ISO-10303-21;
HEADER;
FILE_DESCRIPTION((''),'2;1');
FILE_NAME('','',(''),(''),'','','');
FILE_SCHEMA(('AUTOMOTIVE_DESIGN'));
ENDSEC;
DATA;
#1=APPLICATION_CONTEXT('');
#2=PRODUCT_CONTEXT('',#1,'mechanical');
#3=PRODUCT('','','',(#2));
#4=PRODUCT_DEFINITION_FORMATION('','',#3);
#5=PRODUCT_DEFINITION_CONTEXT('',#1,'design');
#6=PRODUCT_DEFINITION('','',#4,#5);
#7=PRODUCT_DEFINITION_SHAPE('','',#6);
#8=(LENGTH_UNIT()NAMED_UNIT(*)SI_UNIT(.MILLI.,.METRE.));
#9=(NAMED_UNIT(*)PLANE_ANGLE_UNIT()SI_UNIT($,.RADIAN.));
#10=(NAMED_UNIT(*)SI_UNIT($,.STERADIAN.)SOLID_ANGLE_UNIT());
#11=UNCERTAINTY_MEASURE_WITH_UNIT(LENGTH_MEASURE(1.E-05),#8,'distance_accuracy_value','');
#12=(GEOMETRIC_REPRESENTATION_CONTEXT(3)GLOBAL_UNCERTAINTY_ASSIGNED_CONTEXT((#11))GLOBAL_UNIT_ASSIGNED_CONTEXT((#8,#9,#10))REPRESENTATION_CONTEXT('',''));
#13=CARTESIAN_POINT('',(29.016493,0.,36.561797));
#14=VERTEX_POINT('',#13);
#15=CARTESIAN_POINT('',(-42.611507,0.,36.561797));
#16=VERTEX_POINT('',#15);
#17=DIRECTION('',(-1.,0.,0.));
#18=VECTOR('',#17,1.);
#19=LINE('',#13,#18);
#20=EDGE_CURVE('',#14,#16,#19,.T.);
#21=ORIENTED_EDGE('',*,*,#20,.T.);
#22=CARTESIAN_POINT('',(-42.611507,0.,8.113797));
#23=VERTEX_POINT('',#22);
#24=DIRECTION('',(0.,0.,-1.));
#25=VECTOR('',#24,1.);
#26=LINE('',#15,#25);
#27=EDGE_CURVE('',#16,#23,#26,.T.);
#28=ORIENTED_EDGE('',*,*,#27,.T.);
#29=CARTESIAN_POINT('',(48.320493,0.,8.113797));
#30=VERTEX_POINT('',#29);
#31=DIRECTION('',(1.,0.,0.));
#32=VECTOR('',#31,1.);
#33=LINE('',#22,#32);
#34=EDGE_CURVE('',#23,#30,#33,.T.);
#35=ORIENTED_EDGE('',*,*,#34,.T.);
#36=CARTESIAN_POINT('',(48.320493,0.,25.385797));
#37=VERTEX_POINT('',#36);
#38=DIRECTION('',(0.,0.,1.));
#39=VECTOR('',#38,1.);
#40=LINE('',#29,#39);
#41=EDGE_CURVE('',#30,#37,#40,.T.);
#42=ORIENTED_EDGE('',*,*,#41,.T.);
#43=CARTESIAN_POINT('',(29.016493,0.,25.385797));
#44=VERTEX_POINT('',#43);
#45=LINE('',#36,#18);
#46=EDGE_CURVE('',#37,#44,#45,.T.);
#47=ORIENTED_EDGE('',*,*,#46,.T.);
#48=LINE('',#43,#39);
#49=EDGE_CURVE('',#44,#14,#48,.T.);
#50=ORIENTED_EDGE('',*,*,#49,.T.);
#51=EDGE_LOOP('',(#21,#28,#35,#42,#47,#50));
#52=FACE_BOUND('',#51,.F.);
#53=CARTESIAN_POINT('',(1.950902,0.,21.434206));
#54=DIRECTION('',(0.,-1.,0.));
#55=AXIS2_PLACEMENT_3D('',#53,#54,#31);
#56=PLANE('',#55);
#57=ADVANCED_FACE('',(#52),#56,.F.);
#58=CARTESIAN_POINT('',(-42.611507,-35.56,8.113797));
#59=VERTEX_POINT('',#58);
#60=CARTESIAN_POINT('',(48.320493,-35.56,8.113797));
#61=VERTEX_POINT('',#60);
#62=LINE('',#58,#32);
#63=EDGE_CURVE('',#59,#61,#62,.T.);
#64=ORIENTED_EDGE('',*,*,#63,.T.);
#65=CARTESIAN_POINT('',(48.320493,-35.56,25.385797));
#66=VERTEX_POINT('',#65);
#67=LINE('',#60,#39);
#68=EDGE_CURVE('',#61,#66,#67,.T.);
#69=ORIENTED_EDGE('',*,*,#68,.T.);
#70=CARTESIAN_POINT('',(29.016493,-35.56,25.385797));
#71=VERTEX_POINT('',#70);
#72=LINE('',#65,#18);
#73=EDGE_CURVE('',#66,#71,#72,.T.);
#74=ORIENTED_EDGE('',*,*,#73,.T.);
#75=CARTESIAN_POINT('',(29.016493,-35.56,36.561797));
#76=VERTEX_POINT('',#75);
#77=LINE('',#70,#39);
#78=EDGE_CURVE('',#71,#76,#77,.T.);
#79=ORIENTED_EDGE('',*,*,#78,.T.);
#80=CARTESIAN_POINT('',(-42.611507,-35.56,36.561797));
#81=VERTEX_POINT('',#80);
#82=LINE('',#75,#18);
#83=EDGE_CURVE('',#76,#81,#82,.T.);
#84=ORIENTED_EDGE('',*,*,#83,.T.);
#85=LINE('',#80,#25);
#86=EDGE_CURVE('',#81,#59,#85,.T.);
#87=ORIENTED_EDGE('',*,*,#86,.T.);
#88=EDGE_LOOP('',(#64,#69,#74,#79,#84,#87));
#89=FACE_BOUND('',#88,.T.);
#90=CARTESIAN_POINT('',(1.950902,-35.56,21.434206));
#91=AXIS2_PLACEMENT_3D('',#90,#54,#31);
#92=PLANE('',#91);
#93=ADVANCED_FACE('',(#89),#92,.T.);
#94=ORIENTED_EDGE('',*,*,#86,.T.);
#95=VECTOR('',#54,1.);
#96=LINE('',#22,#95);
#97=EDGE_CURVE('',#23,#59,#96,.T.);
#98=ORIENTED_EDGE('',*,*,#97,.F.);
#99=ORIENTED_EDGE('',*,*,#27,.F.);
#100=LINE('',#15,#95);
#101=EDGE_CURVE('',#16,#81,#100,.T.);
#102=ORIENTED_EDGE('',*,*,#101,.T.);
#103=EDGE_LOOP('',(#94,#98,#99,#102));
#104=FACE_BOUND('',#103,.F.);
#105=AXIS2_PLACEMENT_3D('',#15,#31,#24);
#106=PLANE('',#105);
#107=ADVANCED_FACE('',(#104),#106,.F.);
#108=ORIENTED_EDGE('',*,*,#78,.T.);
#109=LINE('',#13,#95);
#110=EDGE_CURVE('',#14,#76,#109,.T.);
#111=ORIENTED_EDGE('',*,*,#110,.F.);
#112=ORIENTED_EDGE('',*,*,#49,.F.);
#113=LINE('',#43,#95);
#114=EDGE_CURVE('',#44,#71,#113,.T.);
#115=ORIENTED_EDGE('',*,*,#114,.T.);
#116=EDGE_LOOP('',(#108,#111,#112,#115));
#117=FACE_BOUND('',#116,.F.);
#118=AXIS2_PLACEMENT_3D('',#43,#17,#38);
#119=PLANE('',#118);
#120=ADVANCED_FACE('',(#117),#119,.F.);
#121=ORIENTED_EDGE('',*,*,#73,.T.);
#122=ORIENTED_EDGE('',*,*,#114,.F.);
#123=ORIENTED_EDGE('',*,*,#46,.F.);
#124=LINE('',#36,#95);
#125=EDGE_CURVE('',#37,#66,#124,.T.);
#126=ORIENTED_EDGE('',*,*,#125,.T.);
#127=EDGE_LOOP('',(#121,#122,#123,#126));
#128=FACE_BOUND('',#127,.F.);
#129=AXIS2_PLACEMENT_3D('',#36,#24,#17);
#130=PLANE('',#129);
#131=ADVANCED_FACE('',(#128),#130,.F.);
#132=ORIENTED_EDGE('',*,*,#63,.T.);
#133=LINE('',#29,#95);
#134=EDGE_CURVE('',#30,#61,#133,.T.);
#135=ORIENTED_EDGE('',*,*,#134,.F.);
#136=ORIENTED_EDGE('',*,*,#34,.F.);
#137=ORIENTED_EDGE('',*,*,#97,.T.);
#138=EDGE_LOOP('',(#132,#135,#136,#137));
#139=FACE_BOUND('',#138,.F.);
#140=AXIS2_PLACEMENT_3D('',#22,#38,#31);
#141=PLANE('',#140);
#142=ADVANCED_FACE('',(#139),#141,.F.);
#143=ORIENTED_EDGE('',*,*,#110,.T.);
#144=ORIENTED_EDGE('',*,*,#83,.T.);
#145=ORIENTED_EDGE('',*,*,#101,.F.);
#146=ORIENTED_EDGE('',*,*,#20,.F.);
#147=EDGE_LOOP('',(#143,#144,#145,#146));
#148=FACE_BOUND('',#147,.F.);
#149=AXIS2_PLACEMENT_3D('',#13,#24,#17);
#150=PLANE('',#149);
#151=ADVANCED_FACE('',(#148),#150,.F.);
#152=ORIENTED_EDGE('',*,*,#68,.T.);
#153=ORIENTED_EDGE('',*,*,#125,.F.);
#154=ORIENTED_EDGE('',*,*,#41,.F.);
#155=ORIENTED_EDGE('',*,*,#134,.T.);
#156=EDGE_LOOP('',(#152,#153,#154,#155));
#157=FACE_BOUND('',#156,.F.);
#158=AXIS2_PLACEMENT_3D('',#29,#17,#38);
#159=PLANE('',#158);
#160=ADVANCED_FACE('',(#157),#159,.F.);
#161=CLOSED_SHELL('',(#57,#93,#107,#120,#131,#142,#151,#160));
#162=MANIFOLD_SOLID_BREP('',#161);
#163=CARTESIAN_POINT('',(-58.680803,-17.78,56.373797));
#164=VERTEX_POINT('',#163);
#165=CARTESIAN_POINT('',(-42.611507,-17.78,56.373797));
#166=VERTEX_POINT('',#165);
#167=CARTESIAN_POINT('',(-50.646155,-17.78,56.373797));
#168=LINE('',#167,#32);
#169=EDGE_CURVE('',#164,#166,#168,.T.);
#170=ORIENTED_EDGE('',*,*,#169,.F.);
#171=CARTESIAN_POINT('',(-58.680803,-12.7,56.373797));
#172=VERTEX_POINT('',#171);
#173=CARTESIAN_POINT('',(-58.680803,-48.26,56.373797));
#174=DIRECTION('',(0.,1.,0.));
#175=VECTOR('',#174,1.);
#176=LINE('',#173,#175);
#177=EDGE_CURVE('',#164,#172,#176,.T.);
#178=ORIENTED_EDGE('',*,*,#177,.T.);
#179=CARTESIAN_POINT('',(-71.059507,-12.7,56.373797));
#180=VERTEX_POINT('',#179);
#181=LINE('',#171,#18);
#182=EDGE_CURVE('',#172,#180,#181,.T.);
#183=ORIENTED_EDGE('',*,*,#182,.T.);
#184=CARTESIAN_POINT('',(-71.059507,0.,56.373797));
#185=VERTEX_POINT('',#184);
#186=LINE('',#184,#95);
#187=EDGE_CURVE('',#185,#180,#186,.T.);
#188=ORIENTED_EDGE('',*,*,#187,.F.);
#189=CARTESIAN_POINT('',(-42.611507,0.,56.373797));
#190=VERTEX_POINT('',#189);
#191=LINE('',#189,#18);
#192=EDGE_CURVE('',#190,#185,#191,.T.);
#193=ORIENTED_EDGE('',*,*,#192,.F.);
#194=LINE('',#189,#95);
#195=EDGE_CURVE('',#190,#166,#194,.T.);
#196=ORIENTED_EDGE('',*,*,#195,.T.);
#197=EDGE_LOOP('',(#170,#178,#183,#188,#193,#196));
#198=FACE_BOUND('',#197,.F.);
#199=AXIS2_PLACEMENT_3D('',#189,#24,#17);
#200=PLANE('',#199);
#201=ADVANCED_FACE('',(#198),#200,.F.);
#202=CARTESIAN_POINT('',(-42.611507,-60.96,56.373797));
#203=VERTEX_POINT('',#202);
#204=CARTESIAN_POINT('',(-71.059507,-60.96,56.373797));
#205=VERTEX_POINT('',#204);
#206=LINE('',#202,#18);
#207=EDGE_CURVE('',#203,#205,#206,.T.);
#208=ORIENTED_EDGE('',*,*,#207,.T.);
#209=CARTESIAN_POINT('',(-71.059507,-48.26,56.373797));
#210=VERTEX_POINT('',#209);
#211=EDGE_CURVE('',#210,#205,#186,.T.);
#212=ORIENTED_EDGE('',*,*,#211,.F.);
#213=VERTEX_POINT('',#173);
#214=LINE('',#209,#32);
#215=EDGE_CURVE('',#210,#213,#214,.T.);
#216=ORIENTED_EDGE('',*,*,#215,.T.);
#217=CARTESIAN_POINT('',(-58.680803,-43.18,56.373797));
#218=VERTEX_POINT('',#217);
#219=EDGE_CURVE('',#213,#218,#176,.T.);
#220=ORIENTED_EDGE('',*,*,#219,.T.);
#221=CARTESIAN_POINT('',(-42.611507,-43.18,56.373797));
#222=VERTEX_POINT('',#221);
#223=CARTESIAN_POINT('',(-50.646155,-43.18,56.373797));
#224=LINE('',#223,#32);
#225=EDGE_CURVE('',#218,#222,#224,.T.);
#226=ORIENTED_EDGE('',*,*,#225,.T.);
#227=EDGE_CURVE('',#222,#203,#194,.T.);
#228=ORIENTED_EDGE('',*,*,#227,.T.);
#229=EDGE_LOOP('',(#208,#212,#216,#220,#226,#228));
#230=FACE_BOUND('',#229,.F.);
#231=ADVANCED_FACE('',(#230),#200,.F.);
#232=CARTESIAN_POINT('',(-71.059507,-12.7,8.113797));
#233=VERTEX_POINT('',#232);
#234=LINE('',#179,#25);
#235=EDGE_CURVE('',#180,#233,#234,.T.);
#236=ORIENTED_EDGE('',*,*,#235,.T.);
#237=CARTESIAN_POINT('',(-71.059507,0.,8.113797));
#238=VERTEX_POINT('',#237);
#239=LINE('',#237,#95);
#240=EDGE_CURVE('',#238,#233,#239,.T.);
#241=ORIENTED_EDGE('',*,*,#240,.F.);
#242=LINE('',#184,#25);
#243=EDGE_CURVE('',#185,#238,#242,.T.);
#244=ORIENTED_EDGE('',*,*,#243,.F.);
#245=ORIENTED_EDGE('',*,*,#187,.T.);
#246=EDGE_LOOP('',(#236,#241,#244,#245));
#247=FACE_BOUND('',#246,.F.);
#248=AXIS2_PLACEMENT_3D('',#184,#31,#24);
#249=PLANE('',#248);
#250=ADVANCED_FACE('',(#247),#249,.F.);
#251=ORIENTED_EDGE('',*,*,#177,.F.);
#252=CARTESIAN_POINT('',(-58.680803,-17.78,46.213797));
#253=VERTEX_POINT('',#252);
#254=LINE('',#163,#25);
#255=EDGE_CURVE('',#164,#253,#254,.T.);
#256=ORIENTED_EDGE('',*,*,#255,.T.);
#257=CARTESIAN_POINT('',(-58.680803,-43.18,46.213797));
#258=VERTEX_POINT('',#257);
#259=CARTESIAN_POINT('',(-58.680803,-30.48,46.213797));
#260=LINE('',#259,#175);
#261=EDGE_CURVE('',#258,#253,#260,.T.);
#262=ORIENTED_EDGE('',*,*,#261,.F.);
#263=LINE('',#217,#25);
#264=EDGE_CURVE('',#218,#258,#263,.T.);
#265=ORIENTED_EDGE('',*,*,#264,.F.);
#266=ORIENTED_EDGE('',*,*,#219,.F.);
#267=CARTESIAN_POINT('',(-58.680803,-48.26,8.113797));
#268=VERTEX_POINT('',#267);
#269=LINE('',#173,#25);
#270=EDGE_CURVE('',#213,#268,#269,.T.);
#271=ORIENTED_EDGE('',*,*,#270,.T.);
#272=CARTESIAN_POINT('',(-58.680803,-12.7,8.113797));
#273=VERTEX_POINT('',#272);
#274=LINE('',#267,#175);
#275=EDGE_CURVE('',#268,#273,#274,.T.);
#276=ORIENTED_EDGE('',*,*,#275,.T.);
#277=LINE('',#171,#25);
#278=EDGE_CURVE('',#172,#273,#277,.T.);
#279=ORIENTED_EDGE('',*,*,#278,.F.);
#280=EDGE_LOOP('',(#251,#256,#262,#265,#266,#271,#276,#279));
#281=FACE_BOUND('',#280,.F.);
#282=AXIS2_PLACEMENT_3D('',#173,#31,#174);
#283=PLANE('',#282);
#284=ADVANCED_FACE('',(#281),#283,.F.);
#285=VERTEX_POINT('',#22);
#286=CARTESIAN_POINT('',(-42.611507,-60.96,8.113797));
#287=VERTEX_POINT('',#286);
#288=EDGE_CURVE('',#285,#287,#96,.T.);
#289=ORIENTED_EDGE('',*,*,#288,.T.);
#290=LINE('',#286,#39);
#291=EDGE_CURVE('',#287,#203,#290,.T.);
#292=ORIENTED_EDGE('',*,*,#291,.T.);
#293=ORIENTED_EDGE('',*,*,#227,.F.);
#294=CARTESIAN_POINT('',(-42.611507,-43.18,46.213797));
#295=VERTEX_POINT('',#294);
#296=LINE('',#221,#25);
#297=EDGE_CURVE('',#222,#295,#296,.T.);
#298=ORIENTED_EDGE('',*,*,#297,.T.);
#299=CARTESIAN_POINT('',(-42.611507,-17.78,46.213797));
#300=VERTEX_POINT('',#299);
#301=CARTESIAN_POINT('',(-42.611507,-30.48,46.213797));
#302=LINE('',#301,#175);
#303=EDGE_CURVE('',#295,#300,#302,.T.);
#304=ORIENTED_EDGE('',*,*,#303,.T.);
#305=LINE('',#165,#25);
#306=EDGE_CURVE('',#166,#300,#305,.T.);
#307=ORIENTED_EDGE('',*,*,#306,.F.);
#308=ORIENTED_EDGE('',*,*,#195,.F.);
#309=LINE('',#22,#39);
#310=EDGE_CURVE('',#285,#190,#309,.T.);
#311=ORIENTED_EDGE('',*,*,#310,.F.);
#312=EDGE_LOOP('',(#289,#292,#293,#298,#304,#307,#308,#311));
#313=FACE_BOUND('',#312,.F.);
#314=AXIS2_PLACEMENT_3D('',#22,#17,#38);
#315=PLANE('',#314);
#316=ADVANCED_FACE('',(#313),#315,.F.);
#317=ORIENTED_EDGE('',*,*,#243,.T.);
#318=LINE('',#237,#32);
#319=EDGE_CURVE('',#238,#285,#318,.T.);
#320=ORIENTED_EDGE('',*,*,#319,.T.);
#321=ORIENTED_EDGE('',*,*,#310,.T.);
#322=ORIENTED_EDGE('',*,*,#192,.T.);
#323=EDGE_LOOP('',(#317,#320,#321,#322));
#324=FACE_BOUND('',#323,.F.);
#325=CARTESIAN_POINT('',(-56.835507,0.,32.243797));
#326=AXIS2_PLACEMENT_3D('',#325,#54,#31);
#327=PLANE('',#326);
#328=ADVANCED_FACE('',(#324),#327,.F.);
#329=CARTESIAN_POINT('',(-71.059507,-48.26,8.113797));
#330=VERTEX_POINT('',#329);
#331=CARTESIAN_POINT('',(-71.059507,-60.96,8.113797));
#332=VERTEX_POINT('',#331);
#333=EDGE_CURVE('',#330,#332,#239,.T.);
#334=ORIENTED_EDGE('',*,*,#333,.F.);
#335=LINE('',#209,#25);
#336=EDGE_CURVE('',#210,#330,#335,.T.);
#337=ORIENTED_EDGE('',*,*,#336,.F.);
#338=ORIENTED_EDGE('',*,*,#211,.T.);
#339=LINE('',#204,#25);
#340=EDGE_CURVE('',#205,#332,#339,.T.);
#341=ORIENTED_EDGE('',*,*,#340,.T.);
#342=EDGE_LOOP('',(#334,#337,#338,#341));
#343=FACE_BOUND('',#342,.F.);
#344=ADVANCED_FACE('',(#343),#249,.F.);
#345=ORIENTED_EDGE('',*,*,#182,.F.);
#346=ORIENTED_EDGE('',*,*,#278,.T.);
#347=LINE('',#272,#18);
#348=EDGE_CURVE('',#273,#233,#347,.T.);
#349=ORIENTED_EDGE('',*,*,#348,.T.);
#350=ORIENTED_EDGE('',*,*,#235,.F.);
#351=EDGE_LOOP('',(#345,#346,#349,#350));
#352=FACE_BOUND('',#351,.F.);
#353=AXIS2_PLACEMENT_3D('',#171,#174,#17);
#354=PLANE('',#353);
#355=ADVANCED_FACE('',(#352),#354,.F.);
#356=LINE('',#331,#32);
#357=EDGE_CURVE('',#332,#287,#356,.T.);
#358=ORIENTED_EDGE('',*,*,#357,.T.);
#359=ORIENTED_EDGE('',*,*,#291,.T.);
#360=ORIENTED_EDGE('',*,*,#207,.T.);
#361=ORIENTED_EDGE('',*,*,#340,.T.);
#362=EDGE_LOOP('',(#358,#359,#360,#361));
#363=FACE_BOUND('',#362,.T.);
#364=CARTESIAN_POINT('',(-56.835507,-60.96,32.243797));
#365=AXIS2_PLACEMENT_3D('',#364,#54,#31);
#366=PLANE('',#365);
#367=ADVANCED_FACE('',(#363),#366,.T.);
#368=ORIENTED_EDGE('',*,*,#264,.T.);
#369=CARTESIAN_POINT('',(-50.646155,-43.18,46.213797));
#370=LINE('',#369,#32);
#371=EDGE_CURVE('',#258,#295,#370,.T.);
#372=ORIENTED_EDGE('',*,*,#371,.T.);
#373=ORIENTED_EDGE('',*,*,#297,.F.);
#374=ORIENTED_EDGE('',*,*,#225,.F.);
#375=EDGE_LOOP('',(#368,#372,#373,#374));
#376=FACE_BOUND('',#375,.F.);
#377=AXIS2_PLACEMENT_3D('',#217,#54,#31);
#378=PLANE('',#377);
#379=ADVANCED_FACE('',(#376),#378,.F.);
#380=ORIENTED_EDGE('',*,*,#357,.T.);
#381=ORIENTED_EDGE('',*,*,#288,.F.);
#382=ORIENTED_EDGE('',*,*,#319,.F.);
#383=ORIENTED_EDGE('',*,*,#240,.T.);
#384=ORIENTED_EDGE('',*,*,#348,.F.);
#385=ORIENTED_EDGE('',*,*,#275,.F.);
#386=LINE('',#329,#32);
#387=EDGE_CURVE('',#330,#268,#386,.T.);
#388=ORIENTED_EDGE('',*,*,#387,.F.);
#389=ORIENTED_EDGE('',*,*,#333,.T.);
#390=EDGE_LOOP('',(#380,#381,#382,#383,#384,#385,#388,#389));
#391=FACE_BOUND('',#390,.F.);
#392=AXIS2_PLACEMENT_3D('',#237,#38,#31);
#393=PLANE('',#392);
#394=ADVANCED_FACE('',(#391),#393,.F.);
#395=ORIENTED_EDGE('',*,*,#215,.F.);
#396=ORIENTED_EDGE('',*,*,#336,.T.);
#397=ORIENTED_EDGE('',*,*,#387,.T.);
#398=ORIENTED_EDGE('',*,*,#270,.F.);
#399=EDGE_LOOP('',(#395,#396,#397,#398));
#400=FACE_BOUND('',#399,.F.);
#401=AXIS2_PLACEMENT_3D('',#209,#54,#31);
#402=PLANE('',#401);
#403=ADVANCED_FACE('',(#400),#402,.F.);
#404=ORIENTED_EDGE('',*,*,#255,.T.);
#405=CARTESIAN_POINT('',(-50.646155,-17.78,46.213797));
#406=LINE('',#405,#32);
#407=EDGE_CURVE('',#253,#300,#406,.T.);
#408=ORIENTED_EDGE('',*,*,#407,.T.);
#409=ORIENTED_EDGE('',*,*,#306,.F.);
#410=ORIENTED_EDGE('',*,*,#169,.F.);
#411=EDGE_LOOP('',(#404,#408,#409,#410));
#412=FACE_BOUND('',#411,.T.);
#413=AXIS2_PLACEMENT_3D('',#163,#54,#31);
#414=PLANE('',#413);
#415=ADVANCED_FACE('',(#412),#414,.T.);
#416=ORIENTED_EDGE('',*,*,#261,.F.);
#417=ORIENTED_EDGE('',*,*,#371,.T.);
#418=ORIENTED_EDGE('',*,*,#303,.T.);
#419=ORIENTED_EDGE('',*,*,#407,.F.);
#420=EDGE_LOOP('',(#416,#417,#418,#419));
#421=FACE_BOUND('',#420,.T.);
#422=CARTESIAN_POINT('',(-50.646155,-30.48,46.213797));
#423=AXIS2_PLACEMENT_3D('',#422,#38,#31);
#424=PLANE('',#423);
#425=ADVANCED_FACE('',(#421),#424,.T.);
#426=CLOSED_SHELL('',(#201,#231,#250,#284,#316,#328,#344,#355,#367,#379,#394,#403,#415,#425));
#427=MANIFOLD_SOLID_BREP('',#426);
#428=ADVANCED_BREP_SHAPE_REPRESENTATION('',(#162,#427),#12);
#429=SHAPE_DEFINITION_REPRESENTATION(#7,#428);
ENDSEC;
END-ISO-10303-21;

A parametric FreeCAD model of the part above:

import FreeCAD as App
import Part
import Sketcher

V = App.Vector
Q = App.Units.Quantity


def add_polygon(sketch, points):
    """Adds a closed chain of lines whose ends are joined by coincident constraints."""
    first, n = sketch.GeometryCount, len(points)
    for a, b in zip(points, points[1:] + points[:1]):
        sketch.addGeometry(Part.LineSegment(App.Vector(*a, 0), App.Vector(*b, 0)), False)
    for i in range(n):
        sketch.addConstraint(Sketcher.Constraint("Coincident", first + i, 2, first + (i + 1) % n, 1))

doc = App.newDocument("Part")
body = doc.addObject("PartDesign::Body", "Body")

sketch1 = body.newObject("Sketcher::SketchObject", "Sketch")
sketch1.AttachmentSupport = (doc.getObject("XZ_Plane"), [""])
sketch1.MapMode = "FlatFace"
add_polygon(sketch1, [(-43, 56), (-71, 56), (-71, 8), (-43, 8)])
sketch1.addConstraint([
    Sketcher.Constraint("Horizontal", 0),
    Sketcher.Constraint("Vertical", 1),
    Sketcher.Constraint("Horizontal", 2),
    Sketcher.Constraint("Vertical", 3),
    Sketcher.Constraint("DistanceY", 1, 2, 1, 1, Q("1.9 in")),
    Sketcher.Constraint("DistanceX", 0, 2, 0, 1, Q("1.12 in")),
    Sketcher.Constraint("DistanceX", 0, 2, -1, 1, 71.059507),
    Sketcher.Constraint("DistanceY", -1, 1, 0, 2, 56.373797),
])
pad1 = body.newObject("PartDesign::Pad", "Pad")
pad1.Profile = sketch1
pad1.Length = Q("2.4 in")

sketch2 = body.newObject("Sketcher::SketchObject", "Sketch001")
sketch2.AttachmentSupport = (doc.getObject("XY_Plane"), [""])
sketch2.MapMode = "FlatFace"
sketch2.AttachmentOffset = App.Placement(V(0, 0, 56.373797), App.Rotation())
add_polygon(sketch2, [(-59, -18), (-59, -43), (-43, -43), (-43, -18)])
sketch2.addConstraint([
    Sketcher.Constraint("Vertical", 0),
    Sketcher.Constraint("Horizontal", 1),
    Sketcher.Constraint("Vertical", 2),
    Sketcher.Constraint("Horizontal", 3),
    Sketcher.Constraint("DistanceY", 0, 2, 0, 1, Q("1 in")),
    Sketcher.Constraint("DistanceY", 0, 2, -1, 1, Q("1.7 in")),
    Sketcher.Constraint("DistanceX", 1, 1, 1, 2, 16.069296),
    Sketcher.Constraint("DistanceX", 0, 2, -1, 1, 58.680803),
])
pocket1 = body.newObject("PartDesign::Pocket", "Pocket")
pocket1.Profile = sketch2
pocket1.Length = Q("0.4 in")

sketch3 = body.newObject("Sketcher::SketchObject", "Sketch002")
sketch3.AttachmentSupport = (doc.getObject("XY_Plane"), [""])
sketch3.MapMode = "FlatFace"
sketch3.AttachmentOffset = App.Placement(V(0, 0, 56.373797), App.Rotation())
add_polygon(sketch3, [(-59, -13), (-71, -13), (-71, -48), (-59, -48)])
sketch3.addConstraint([
    Sketcher.Constraint("Horizontal", 0),
    Sketcher.Constraint("Vertical", 1),
    Sketcher.Constraint("Horizontal", 2),
    Sketcher.Constraint("Vertical", 3),
    Sketcher.Constraint("DistanceY", 1, 2, 1, 1, Q("1.4 in")),
    Sketcher.Constraint("DistanceY", 0, 2, -1, 1, Q("0.5 in")),
    Sketcher.Constraint("DistanceX", 0, 2, 0, 1, 12.378704),
    Sketcher.Constraint("DistanceX", 0, 2, -1, 1, 71.059507),
])
pocket2 = body.newObject("PartDesign::Pocket", "Pocket001")
pocket2.Profile = sketch3
pocket2.Length = Q("1.9 in")
body2 = doc.addObject("PartDesign::Body", "Body001")

sketch4 = body2.newObject("Sketcher::SketchObject", "Sketch003")
sketch4.AttachmentSupport = (doc.getObject("XZ_Plane001"), [""])
sketch4.MapMode = "FlatFace"
add_polygon(sketch4, [(29, 37), (-43, 37), (-43, 8), (48, 8), (48, 25), (29, 25)])
sketch4.addConstraint([
    Sketcher.Constraint("Horizontal", 0),
    Sketcher.Constraint("Vertical", 1),
    Sketcher.Constraint("Horizontal", 2),
    Sketcher.Constraint("Vertical", 3),
    Sketcher.Constraint("Horizontal", 4),
    Sketcher.Constraint("Vertical", 5),
    Sketcher.Constraint("DistanceX", 0, 2, 0, 1, Q("2.82 in")),
    Sketcher.Constraint("DistanceX", 2, 1, 2, 2, Q("3.58 in")),
    Sketcher.Constraint("DistanceY", 1, 2, 1, 1, Q("1.12 in")),
    Sketcher.Constraint("DistanceY", 3, 1, 3, 2, Q("0.68 in")),
    Sketcher.Constraint("DistanceX", 0, 2, -1, 1, 42.611507),
    Sketcher.Constraint("DistanceY", -1, 1, 0, 2, 36.561797),
])
pad2 = body2.newObject("PartDesign::Pad", "Pad001")
pad2.Profile = sketch4
pad2.Length = Q("1.4 in")

doc.recompute()
